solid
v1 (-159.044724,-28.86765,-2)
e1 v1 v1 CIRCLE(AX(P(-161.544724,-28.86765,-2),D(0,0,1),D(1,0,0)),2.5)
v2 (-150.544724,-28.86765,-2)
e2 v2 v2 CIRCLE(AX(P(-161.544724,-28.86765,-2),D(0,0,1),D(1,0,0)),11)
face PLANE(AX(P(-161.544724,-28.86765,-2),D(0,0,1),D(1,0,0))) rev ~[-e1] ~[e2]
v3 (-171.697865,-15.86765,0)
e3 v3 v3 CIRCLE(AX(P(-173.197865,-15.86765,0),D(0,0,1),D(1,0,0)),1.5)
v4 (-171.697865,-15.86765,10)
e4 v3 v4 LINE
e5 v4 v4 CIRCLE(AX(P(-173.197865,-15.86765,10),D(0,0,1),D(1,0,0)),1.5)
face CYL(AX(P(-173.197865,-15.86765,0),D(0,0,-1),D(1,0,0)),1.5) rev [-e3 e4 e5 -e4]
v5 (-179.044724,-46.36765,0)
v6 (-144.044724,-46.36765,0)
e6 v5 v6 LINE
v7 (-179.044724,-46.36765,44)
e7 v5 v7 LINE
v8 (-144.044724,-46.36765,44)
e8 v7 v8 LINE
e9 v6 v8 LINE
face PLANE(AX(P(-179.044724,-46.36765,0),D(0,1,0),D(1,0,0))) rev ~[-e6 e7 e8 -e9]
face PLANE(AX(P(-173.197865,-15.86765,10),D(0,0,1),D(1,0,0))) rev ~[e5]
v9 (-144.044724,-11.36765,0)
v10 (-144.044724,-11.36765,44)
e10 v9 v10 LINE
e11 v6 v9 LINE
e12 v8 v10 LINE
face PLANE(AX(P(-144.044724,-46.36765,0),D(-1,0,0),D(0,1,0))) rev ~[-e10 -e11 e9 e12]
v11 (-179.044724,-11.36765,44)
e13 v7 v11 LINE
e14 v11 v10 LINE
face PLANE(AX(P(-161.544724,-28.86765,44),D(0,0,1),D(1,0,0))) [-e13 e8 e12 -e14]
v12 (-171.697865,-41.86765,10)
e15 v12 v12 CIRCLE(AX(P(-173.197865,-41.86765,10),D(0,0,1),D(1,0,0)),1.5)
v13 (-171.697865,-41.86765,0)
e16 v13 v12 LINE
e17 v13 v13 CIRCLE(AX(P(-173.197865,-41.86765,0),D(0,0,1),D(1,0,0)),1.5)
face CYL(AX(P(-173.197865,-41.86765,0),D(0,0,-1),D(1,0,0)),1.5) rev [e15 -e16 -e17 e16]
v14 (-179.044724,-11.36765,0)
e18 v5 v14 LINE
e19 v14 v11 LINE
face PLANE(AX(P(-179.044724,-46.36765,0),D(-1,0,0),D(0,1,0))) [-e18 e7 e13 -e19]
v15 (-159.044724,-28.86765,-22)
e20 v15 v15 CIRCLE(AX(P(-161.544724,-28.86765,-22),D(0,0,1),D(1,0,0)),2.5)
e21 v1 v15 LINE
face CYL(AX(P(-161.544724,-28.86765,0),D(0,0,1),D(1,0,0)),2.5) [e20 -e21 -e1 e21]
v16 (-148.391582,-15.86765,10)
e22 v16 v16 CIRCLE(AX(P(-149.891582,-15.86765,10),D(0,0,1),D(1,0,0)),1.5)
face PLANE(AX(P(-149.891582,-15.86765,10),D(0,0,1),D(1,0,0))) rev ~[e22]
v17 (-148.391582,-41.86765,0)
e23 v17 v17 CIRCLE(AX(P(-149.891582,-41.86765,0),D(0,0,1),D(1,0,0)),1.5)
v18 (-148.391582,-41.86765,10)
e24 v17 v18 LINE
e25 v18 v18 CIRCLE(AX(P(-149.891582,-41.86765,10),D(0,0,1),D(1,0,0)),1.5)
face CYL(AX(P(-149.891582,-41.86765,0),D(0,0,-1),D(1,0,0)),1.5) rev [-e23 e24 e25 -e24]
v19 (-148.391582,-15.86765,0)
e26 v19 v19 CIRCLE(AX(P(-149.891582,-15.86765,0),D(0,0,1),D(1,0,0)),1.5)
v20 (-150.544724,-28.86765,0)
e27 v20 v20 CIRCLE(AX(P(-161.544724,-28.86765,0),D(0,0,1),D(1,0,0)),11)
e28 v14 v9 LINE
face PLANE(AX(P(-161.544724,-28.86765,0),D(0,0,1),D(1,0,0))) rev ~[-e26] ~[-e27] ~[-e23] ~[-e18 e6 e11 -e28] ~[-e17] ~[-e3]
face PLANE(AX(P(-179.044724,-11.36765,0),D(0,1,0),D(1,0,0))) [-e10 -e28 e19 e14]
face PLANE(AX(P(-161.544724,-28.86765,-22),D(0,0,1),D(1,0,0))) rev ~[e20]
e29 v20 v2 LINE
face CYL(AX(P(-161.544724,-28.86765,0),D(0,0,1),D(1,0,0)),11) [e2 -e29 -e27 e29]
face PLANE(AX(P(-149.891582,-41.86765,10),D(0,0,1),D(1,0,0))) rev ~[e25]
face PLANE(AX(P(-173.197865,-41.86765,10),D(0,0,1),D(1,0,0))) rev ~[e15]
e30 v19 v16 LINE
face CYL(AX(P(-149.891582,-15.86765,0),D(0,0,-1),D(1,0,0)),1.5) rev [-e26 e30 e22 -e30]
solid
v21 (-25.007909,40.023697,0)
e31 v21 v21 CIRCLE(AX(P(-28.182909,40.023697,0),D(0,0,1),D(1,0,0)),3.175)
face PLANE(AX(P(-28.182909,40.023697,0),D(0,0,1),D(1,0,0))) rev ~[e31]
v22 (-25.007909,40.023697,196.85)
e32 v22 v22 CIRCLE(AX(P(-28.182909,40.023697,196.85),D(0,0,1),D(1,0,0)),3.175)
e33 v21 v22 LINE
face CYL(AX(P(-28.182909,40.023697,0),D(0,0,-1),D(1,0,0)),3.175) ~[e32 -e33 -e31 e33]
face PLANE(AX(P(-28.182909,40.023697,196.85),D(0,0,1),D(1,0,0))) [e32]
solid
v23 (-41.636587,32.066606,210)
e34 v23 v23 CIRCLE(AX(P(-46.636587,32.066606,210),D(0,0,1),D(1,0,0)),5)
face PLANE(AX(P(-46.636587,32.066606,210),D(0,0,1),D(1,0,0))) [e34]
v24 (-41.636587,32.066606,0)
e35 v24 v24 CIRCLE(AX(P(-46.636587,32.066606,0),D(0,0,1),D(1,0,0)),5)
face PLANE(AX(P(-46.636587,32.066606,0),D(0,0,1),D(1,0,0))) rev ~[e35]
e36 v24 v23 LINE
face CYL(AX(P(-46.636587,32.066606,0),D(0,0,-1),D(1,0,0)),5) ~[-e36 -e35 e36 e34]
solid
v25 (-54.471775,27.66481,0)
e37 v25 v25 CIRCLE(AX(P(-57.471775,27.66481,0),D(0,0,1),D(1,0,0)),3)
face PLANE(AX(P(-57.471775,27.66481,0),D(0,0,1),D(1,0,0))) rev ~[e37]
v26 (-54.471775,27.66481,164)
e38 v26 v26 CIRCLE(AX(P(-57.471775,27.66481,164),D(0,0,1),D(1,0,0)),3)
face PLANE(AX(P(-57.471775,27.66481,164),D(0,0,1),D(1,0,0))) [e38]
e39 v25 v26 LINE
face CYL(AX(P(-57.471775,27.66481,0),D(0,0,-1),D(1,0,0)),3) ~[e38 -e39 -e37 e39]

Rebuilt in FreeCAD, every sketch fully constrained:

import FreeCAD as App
import Part
import Sketcher
Q = App.Units.Quantity


def add_polygon(sketch, points):
    """Adds a closed chain of lines whose ends are joined by coincident constraints."""
    first, n = sketch.GeometryCount, len(points)
    for a, b in zip(points, points[1:] + points[:1]):
        sketch.addGeometry(Part.LineSegment(App.Vector(*a, 0), App.Vector(*b, 0)), False)
    for i in range(n):
        sketch.addConstraint(Sketcher.Constraint("Coincident", first + i, 2, first + (i + 1) % n, 1))

doc = App.newDocument("Part")
body = doc.addObject("PartDesign::Body", "Body")

sketch1 = body.newObject("Sketcher::SketchObject", "Sketch")
sketch1.AttachmentSupport = (doc.getObject("XY_Plane"), [""])
sketch1.MapMode = "FlatFace"
sketch1.addGeometry(Part.Circle(App.Vector(-57.5, 27.7, 0), App.Vector(0, 0, 1), 3), False)
sketch1.addConstraint(Sketcher.Constraint("Diameter", 0, Q("6 mm")))
sketch1.addConstraint(Sketcher.Constraint("DistanceY", -1, 1, 0, 3, Q("27.66481 mm")))
sketch1.addConstraint(Sketcher.Constraint("DistanceX", 0, 3, -1, 1, Q("57.471775 mm")))
pad1 = body.newObject("PartDesign::Pad", "Pad")
pad1.Profile = sketch1
pad1.Length = 164
body2 = doc.addObject("PartDesign::Body", "Body001")

sketch2 = body2.newObject("Sketcher::SketchObject", "Sketch001")
sketch2.AttachmentSupport = (doc.getObject("XY_Plane001"), [""])
sketch2.MapMode = "FlatFace"
sketch2.addGeometry(Part.Circle(App.Vector(-47, 32, 0), App.Vector(0, 0, 1), 5), False)
sketch2.addConstraint(Sketcher.Constraint("Diameter", 0, Q("10 mm")))
sketch2.addConstraint(Sketcher.Constraint("DistanceX", 0, 3, -1, 1, Q("46.636587 mm")))
sketch2.addConstraint(Sketcher.Constraint("DistanceY", -1, 1, 0, 3, Q("32.066606 mm")))
pad2 = body2.newObject("PartDesign::Pad", "Pad001")
pad2.Profile = sketch2
pad2.Length = 210
body3 = doc.addObject("PartDesign::Body", "Body002")

sketch3 = body3.newObject("Sketcher::SketchObject", "Sketch002")
sketch3.AttachmentSupport = (doc.getObject("XY_Plane002"), [""])
sketch3.MapMode = "FlatFace"
sketch3.addGeometry(Part.Circle(App.Vector(-28.2, 40, 0), App.Vector(0, 0, 1), 3.2), False)
sketch3.addConstraint(Sketcher.Constraint("Diameter", 0, Q("6.35 mm")))
sketch3.addConstraint(Sketcher.Constraint("DistanceX", 0, 3, -1, 1, Q("28.182909 mm")))
sketch3.addConstraint(Sketcher.Constraint("DistanceY", -1, 1, 0, 3, Q("40.023697 mm")))
pad3 = body3.newObject("PartDesign::Pad", "Pad002")
pad3.Profile = sketch3
pad3.Length = 196.85
body4 = doc.addObject("PartDesign::Body", "Body003")

sketch4 = body4.newObject("Sketcher::SketchObject", "Sketch003")
sketch4.AttachmentSupport = (doc.getObject("XY_Plane003"), [""])
sketch4.MapMode = "FlatFace"
add_polygon(sketch4, [(-179, -11), (-179, -46), (-144, -46), (-144, -11)])
sketch4.addConstraint(Sketcher.Constraint("Vertical", 0))
sketch4.addConstraint(Sketcher.Constraint("Horizontal", 1))
sketch4.addConstraint(Sketcher.Constraint("Vertical", 2))
sketch4.addConstraint(Sketcher.Constraint("Horizontal", 3))
sketch4.addConstraint(Sketcher.Constraint("Equal", 3, 0))
sketch4.addConstraint(Sketcher.Constraint("DistanceX", 1, 1, 1, 2, Q("35 mm")))
sketch4.addConstraint(Sketcher.Constraint("DistanceY", 0, 2, -1, 1, Q("46.36765 mm")))
sketch4.addConstraint(Sketcher.Constraint("DistanceX", 0, 2, -1, 1, Q("179.044724 mm")))
pad4 = body4.newObject("PartDesign::Pad", "Pad003")
pad4.Profile = sketch4
pad4.Length = 44

sketch5 = body4.newObject("Sketcher::SketchObject", "Sketch004")
sketch5.AttachmentSupport = (doc.getObject("XY_Plane003"), [""])
sketch5.MapMode = "FlatFace"
sketch5.addGeometry(Part.Circle(App.Vector(-162, -29, 0), App.Vector(0, 0, 1), 11), False)
sketch5.addConstraint(Sketcher.Constraint("Diameter", 0, Q("22 mm")))
sketch5.addConstraint(Sketcher.Constraint("DistanceY", 0, 3, -1, 1, Q("28.86765 mm")))
sketch5.addConstraint(Sketcher.Constraint("DistanceX", 0, 3, -1, 1, Q("161.544724 mm")))
pad5 = body4.newObject("PartDesign::Pad", "Pad004")
pad5.Profile = sketch5
pad5.Length = 2
pad5.Reversed = True

sketch6 = body4.newObject("Sketcher::SketchObject", "Sketch005")
sketch6.AttachmentSupport = (doc.getObject("XY_Plane003"), [""])
sketch6.MapMode = "FlatFace"
sketch6.addGeometry(Part.Circle(App.Vector(-173.2, -41.9, 0), App.Vector(0, 0, 1), 1.5), False)
sketch6.addGeometry(Part.Circle(App.Vector(-149.9, -41.9, 0), App.Vector(0, 0, 1), 1.5), False)
sketch6.addGeometry(Part.Circle(App.Vector(-149.9, -15.9, 0), App.Vector(0, 0, 1), 1.5), False)
sketch6.addGeometry(Part.Circle(App.Vector(-173.2, -15.9, 0), App.Vector(0, 0, 1), 1.5), False)
sketch6.addConstraint(Sketcher.Constraint("Equal", 0, 1))
sketch6.addConstraint(Sketcher.Constraint("Equal", 1, 2))
sketch6.addConstraint(Sketcher.Constraint("Equal", 2, 3))
sketch6.addConstraint(Sketcher.Constraint("Horizontal", 0, 3, 1, 3))
sketch6.addConstraint(Sketcher.Constraint("Horizontal", 2, 3, 3, 3))
sketch6.addConstraint(Sketcher.Constraint("Vertical", 1, 3, 2, 3))
sketch6.addConstraint(Sketcher.Constraint("Vertical", 0, 3, 3, 3))
sketch6.addConstraint(Sketcher.Constraint("Diameter", 0, Q("3 mm")))
sketch6.addConstraint(Sketcher.Constraint("DistanceY", 1, 3, 2, 3, Q("26 mm")))
sketch6.addConstraint(Sketcher.Constraint("DistanceY", 0, 3, -1, 1, Q("41.86765 mm")))
sketch6.addConstraint(Sketcher.Constraint("DistanceX", 1, 3, -1, 1, Q("149.891582 mm")))
sketch6.addConstraint(Sketcher.Constraint("DistanceX", 0, 3, -1, 1, Q("173.197865 mm")))
pocket1 = body4.newObject("PartDesign::Pocket", "Pocket")
pocket1.Profile = sketch6
pocket1.Length = 10
pocket1.Reversed = True

sketch7 = body4.newObject("Sketcher::SketchObject", "Sketch006")
sketch7.AttachmentSupport = (doc.getObject("XY_Plane003"), [""])
sketch7.MapMode = "FlatFace"
sketch7.addGeometry(Part.Circle(App.Vector(-161.5, -28.9, 0), App.Vector(0, 0, 1), 2.5), False)
sketch7.addConstraint(Sketcher.Constraint("Diameter", 0, Q("5 mm")))
sketch7.addConstraint(Sketcher.Constraint("DistanceY", 0, 3, -1, 1, Q("28.86765 mm")))
sketch7.addConstraint(Sketcher.Constraint("DistanceX", 0, 3, -1, 1, Q("161.544724 mm")))
pad6 = body4.newObject("PartDesign::Pad", "Pad005")
pad6.Profile = sketch7
pad6.Length = 22
pad6.Reversed = True

doc.recompute()
